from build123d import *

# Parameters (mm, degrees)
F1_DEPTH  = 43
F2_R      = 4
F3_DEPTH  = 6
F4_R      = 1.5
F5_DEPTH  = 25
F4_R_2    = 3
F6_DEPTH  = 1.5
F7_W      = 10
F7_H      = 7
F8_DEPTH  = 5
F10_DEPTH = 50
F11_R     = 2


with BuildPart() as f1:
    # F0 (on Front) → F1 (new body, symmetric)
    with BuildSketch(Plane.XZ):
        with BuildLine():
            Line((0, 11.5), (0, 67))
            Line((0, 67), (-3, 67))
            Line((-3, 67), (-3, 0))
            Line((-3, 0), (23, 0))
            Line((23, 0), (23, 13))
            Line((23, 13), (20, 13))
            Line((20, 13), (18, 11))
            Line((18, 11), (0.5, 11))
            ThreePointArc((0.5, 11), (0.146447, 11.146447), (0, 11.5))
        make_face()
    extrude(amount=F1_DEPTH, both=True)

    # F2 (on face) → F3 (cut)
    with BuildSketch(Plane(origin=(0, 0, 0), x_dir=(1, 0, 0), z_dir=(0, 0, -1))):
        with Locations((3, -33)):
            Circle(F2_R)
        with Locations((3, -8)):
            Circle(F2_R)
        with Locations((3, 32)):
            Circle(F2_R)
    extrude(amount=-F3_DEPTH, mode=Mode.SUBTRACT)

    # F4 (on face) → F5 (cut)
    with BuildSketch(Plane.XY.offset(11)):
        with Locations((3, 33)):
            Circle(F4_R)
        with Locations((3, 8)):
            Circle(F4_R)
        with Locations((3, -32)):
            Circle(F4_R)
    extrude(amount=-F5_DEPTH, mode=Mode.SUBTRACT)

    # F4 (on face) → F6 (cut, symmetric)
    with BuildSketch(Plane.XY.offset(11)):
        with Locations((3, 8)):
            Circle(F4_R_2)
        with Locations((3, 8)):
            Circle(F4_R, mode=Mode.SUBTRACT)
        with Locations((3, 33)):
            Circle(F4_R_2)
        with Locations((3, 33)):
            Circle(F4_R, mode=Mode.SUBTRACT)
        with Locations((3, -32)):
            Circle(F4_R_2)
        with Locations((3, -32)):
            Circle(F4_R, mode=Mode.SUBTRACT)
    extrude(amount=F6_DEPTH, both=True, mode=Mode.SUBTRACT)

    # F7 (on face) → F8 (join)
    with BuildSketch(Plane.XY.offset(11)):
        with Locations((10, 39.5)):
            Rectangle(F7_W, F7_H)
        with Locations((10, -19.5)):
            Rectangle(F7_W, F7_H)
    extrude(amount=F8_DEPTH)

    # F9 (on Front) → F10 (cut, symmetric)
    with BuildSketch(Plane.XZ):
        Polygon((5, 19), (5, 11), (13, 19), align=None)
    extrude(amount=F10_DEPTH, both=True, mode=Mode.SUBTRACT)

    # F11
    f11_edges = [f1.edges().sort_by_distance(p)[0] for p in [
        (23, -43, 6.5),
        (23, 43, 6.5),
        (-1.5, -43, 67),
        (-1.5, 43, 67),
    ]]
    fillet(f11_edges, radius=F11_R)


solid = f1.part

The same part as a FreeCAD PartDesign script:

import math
import FreeCAD as App
import Part
import Sketcher

V = App.Vector
Q = App.Units.Quantity


def edges_at(feature, points):
    """Names of the edges that pass closest to the given points."""
    edges = feature.Shape.Edges
    near = lambda p: min(range(len(edges)), key=lambda i: edges[i].distToShape(Part.Vertex(*p))[0])
    return sorted({f"Edge{near(p) + 1}" for p in points})

doc = App.newDocument("Part")
params = doc.addObject("Spreadsheet::Sheet", "Params")
for row, (alias, value) in enumerate([
    ("sketch1_radius", "0.500001 mm"),
    ("sketch1_width", "3 mm"),
    ("sketch1_width2", "26 mm"),
    ("sketch1_height", "67 mm"),
    ("sketch1_height2", "13 mm"),
    ("pad1_length", "86 mm"),
    ("sketch2_diameter", "8 mm"),
    ("pocket1_length", "6 mm"),
    ("sketch3_diameter", "3 mm"),
    ("pocket2_length", "25 mm"),
    ("sketch4_diameter", "6 mm"),
    ("sketch4_diameter2", "3 mm"),
    ("pocket3_length", "3 mm"),
    ("sketch5_width", "10 mm"),
    ("sketch5_height", "7 mm"),
    ("pad2_length", "5 mm"),
    ("sketch6_width", "8 mm"),
    ("pocket4_length", "100 mm"),
    ("fillet_radius", "2 mm"),
], start=1):
    params.set(f"A{row}", alias)
    params.set(f"B{row}", "=" + value)
    params.setAlias(f"B{row}", alias)

body = doc.addObject("PartDesign::Body", "Body")

# Sketch on XZ plane
sketch1 = body.newObject("Sketcher::SketchObject", "Sketch")
sketch1.AttachmentSupport = (doc.getObject("XZ_Plane"), [""])
sketch1.MapMode = "FlatFace"
sketch1.addGeometry([
    Part.LineSegment(V(0, 11.5, 0), V(0, 67, 0)),  # 0
    Part.LineSegment(V(0, 67, 0), V(-3, 67, 0)),  # 1
    Part.LineSegment(V(-3, 67, 0), V(-3, 0, 0)),  # 2
    Part.LineSegment(V(-3, 0, 0), V(23, 0, 0)),  # 3
    Part.LineSegment(V(23, 0, 0), V(23, 13, 0)),  # 4
    Part.LineSegment(V(23, 13, 0), V(20, 13, 0)),  # 5
    Part.LineSegment(V(20, 13, 0), V(18, 11, 0)),  # 6
    Part.LineSegment(V(18, 11, 0), V(0.5, 11, 0)),  # 7
    Part.ArcOfCircle(Part.Circle(V(0.5, 11.5, 0), V(0, 0, 1), 0.5), math.radians(-180), math.radians(-90)),  # 8
], False)
sketch1.addConstraint([
    Sketcher.Constraint("Coincident", 0, 2, 1, 1),
    Sketcher.Constraint("Coincident", 1, 2, 2, 1),
    Sketcher.Constraint("Coincident", 2, 2, 3, 1),
    Sketcher.Constraint("Coincident", 3, 2, 4, 1),
    Sketcher.Constraint("Coincident", 4, 2, 5, 1),
    Sketcher.Constraint("Coincident", 5, 2, 6, 1),
    Sketcher.Constraint("Coincident", 6, 2, 7, 1),
    Sketcher.Constraint("Coincident", 7, 2, 8, 2),
    Sketcher.Constraint("Coincident", 8, 1, 0, 1),
    Sketcher.Constraint("Vertical", 0),
    Sketcher.Constraint("Horizontal", 1),
    Sketcher.Constraint("Vertical", 2),
    Sketcher.Constraint("Horizontal", 3),
    Sketcher.Constraint("Vertical", 4),
    Sketcher.Constraint("Horizontal", 5),
    Sketcher.Constraint("Horizontal", 7),
    Sketcher.Constraint("PointOnObject", 0, 2, -2),
    Sketcher.Constraint("PointOnObject", 2, 2, -1),
    Sketcher.Constraint("Vertical", 8, 3, 7, 2),
    Sketcher.Constraint("Equal", 1, 5),
    Sketcher.Constraint("Radius", 8, Q("0.500001 mm")),
    Sketcher.Constraint("DistanceX", 1, 2, 1, 1, Q("3 mm")),
    Sketcher.Constraint("DistanceX", 3, 1, 3, 2, Q("26 mm")),
    Sketcher.Constraint("DistanceY", 2, 2, 2, 1, Q("67 mm")),
    Sketcher.Constraint("DistanceY", 4, 1, 4, 2, Q("13 mm")),
    Sketcher.Constraint("Angle", 6, Q("-135 deg")),
    Sketcher.Constraint("DistanceX", 7, 2, 7, 1, Q("17.5 mm")),
    Sketcher.Constraint("DistanceY", 0, 1, 0, 2, Q("55.5 mm")),
])
sketch1.setExpression("Constraints[20]", "Params.sketch1_radius")
sketch1.setExpression("Constraints[21]", "Params.sketch1_width")
sketch1.setExpression("Constraints[22]", "Params.sketch1_width2")
sketch1.setExpression("Constraints[23]", "Params.sketch1_height")
sketch1.setExpression("Constraints[24]", "Params.sketch1_height2")
pad1 = body.newObject("PartDesign::Pad", "Pad")
pad1.Profile = sketch1
pad1.setExpression("Length", "Params.pad1_length")
pad1.Midplane = True

# Sketch on XY plane
sketch2 = body.newObject("Sketcher::SketchObject", "Sketch001")
sketch2.AttachmentSupport = (doc.getObject("XY_Plane"), [""])
sketch2.MapMode = "FlatFace"
sketch2.addGeometry([
    Part.Circle(V(3, 33, 0), V(0, 0, 1), 4),
    Part.Circle(V(3, 8, 0), V(0, 0, 1), 4),
    Part.Circle(V(3, -32, 0), V(0, 0, 1), 4),
], False)
sketch2.addConstraint([
    Sketcher.Constraint("Equal", 0, 1),
    Sketcher.Constraint("Equal", 1, 2),
    Sketcher.Constraint("Vertical", 0, 3, 1, 3),
    Sketcher.Constraint("Vertical", 1, 3, 2, 3),
    Sketcher.Constraint("Diameter", 0, Q("8 mm")),
    Sketcher.Constraint("DistanceX", -1, 1, 0, 3, Q("3 mm")),
    Sketcher.Constraint("DistanceY", -1, 1, 0, 3, Q("33 mm")),
    Sketcher.Constraint("DistanceY", -1, 1, 1, 3, Q("8 mm")),
    Sketcher.Constraint("DistanceY", 2, 3, -1, 1, Q("32 mm")),
])
sketch2.setExpression("Constraints[4]", "Params.sketch2_diameter")
pocket1 = body.newObject("PartDesign::Pocket", "Pocket")
pocket1.Profile = sketch2
pocket1.setExpression("Length", "Params.pocket1_length")
pocket1.Reversed = True

# Sketch on XY plane
sketch3 = body.newObject("Sketcher::SketchObject", "Sketch002")
sketch3.AttachmentSupport = (doc.getObject("XY_Plane"), [""])
sketch3.MapMode = "FlatFace"
sketch3.AttachmentOffset = App.Placement(V(0, 0, 11), App.Rotation())
sketch3.addGeometry([
    Part.Circle(V(3, 33, 0), V(0, 0, 1), 1.5),
    Part.Circle(V(3, 8, 0), V(0, 0, 1), 1.5),
    Part.Circle(V(3, -32, 0), V(0, 0, 1), 1.5),
], False)
sketch3.addConstraint([
    Sketcher.Constraint("Equal", 0, 1),
    Sketcher.Constraint("Equal", 1, 2),
    Sketcher.Constraint("Vertical", 0, 3, 1, 3),
    Sketcher.Constraint("Vertical", 1, 3, 2, 3),
    Sketcher.Constraint("Diameter", 0, Q("3 mm")),
    Sketcher.Constraint("DistanceX", -1, 1, 0, 3, Q("3 mm")),
    Sketcher.Constraint("DistanceY", -1, 1, 0, 3, Q("33 mm")),
    Sketcher.Constraint("DistanceY", -1, 1, 1, 3, Q("8 mm")),
    Sketcher.Constraint("DistanceY", 2, 3, -1, 1, Q("32 mm")),
])
sketch3.setExpression("Constraints[4]", "Params.sketch3_diameter")
pocket2 = body.newObject("PartDesign::Pocket", "Pocket001")
pocket2.Profile = sketch3
pocket2.setExpression("Length", "Params.pocket2_length")

# Sketch on XY plane
sketch4 = body.newObject("Sketcher::SketchObject", "Sketch003")
sketch4.AttachmentSupport = (doc.getObject("XY_Plane"), [""])
sketch4.MapMode = "FlatFace"
sketch4.AttachmentOffset = App.Placement(V(0, 0, 11), App.Rotation())
sketch4.addGeometry([
    Part.Circle(V(3, 8, 0), V(0, 0, 1), 3),  # 0
    Part.Circle(V(3, 8, 0), V(0, 0, 1), 1.5),  # 1
    Part.Circle(V(3, 33, 0), V(0, 0, 1), 3),  # 2
    Part.Circle(V(3, 33, 0), V(0, 0, 1), 1.5),  # 3
    Part.Circle(V(3, -32, 0), V(0, 0, 1), 3),  # 4
    Part.Circle(V(3, -32, 0), V(0, 0, 1), 1.5),  # 5
], False)
sketch4.addConstraint([
    Sketcher.Constraint("Coincident", 1, 3, 0, 3),
    Sketcher.Constraint("Coincident", 3, 3, 2, 3),
    Sketcher.Constraint("Coincident", 5, 3, 4, 3),
    Sketcher.Constraint("Equal", 0, 2),
    Sketcher.Constraint("Equal", 1, 3),
    Sketcher.Constraint("Equal", 2, 4),
    Sketcher.Constraint("Equal", 3, 5),
    Sketcher.Constraint("Vertical", 1, 3, 2, 3),
    Sketcher.Constraint("Vertical", 3, 3, 4, 3),
    Sketcher.Constraint("Diameter", 0, Q("6 mm")),
    Sketcher.Constraint("Diameter", 1, Q("3 mm")),
    Sketcher.Constraint("DistanceX", -1, 1, 0, 3, Q("3 mm")),
    Sketcher.Constraint("DistanceY", -1, 1, 0, 3, Q("8 mm")),
    Sketcher.Constraint("DistanceY", -1, 1, 2, 3, Q("33 mm")),
    Sketcher.Constraint("DistanceY", 4, 3, -1, 1, Q("32 mm")),
])
sketch4.setExpression("Constraints[9]", "Params.sketch4_diameter")
sketch4.setExpression("Constraints[10]", "Params.sketch4_diameter2")
pocket3 = body.newObject("PartDesign::Pocket", "Pocket002")
pocket3.Profile = sketch4
pocket3.setExpression("Length", "Params.pocket3_length")
pocket3.Midplane = True

# Sketch on XY plane
sketch5 = body.newObject("Sketcher::SketchObject", "Sketch004")
sketch5.AttachmentSupport = (doc.getObject("XY_Plane"), [""])
sketch5.MapMode = "FlatFace"
sketch5.AttachmentOffset = App.Placement(V(0, 0, 11), App.Rotation())
sketch5.addGeometry([
    Part.LineSegment(V(5, 43, 0), V(5, 36, 0)),  # 0
    Part.LineSegment(V(5, 36, 0), V(15, 36, 0)),  # 1
    Part.LineSegment(V(15, 36, 0), V(15, 43, 0)),  # 2
    Part.LineSegment(V(15, 43, 0), V(5, 43, 0)),  # 3
    Part.LineSegment(V(5, -16, 0), V(5, -23, 0)),  # 4
    Part.LineSegment(V(5, -23, 0), V(15, -23, 0)),  # 5
    Part.LineSegment(V(15, -23, 0), V(15, -16, 0)),  # 6
    Part.LineSegment(V(15, -16, 0), V(5, -16, 0)),  # 7
], False)
sketch5.addConstraint([
    Sketcher.Constraint("Coincident", 0, 2, 1, 1),
    Sketcher.Constraint("Coincident", 1, 2, 2, 1),
    Sketcher.Constraint("Coincident", 2, 2, 3, 1),
    Sketcher.Constraint("Coincident", 3, 2, 0, 1),
    Sketcher.Constraint("Coincident", 4, 2, 5, 1),
    Sketcher.Constraint("Coincident", 5, 2, 6, 1),
    Sketcher.Constraint("Coincident", 6, 2, 7, 1),
    Sketcher.Constraint("Coincident", 7, 2, 4, 1),
    Sketcher.Constraint("Vertical", 0),
    Sketcher.Constraint("Horizontal", 1),
    Sketcher.Constraint("Vertical", 2),
    Sketcher.Constraint("Horizontal", 3),
    Sketcher.Constraint("Vertical", 4),
    Sketcher.Constraint("Horizontal", 5),
    Sketcher.Constraint("Vertical", 6),
    Sketcher.Constraint("Horizontal", 7),
    Sketcher.Constraint("Vertical", 3, 2, 4, 2),
    Sketcher.Constraint("Vertical", 2, 2, 5, 2),
    Sketcher.Constraint("Equal", 2, 4),
    Sketcher.Constraint("DistanceX", 1, 1, 1, 2, Q("10 mm")),
    Sketcher.Constraint("DistanceY", 0, 2, 0, 1, Q("7 mm")),
    Sketcher.Constraint("DistanceX", -1, 1, 0, 2, Q("5 mm")),
    Sketcher.Constraint("DistanceY", -1, 1, 0, 2, Q("36 mm")),
    Sketcher.Constraint("DistanceY", 4, 2, -1, 1, Q("23 mm")),
])
sketch5.setExpression("Constraints[19]", "Params.sketch5_width")
sketch5.setExpression("Constraints[20]", "Params.sketch5_height")
pad2 = body.newObject("PartDesign::Pad", "Pad001")
pad2.Profile = sketch5
pad2.setExpression("Length", "Params.pad2_length")

# Sketch on XZ plane
sketch6 = body.newObject("Sketcher::SketchObject", "Sketch005")
sketch6.AttachmentSupport = (doc.getObject("XZ_Plane"), [""])
sketch6.MapMode = "FlatFace"
sketch6.addGeometry([
    Part.LineSegment(V(5, 19, 0), V(5, 11, 0)),
    Part.LineSegment(V(5, 11, 0), V(13, 19, 0)),
    Part.LineSegment(V(13, 19, 0), V(5, 19, 0)),
], False)
sketch6.addConstraint([
    Sketcher.Constraint("Coincident", 0, 2, 1, 1),
    Sketcher.Constraint("Coincident", 1, 2, 2, 1),
    Sketcher.Constraint("Coincident", 2, 2, 0, 1),
    Sketcher.Constraint("Vertical", 0),
    Sketcher.Constraint("Horizontal", 2),
    Sketcher.Constraint("Equal", 2, 0),
    Sketcher.Constraint("DistanceX", 2, 2, 2, 1, Q("8 mm")),
    Sketcher.Constraint("DistanceX", -1, 1, 0, 2, Q("5 mm")),
    Sketcher.Constraint("DistanceY", -1, 1, 0, 2, Q("11 mm")),
])
sketch6.setExpression("Constraints[6]", "Params.sketch6_width")
pocket4 = body.newObject("PartDesign::Pocket", "Pocket003")
pocket4.Profile = sketch6
pocket4.setExpression("Length", "Params.pocket4_length")
pocket4.Midplane = True
doc.recompute()

fillet = body.newObject("PartDesign::Fillet", "Fillet")
fillet.Base = (pocket4, edges_at(pocket4, [
    (23, -43, 6.5),
    (23, 43, 6.5),
    (-1.5, -43, 67),
    (-1.5, 43, 67),
]))
fillet.setExpression("Radius", "Params.fillet_radius")

doc.recompute()
